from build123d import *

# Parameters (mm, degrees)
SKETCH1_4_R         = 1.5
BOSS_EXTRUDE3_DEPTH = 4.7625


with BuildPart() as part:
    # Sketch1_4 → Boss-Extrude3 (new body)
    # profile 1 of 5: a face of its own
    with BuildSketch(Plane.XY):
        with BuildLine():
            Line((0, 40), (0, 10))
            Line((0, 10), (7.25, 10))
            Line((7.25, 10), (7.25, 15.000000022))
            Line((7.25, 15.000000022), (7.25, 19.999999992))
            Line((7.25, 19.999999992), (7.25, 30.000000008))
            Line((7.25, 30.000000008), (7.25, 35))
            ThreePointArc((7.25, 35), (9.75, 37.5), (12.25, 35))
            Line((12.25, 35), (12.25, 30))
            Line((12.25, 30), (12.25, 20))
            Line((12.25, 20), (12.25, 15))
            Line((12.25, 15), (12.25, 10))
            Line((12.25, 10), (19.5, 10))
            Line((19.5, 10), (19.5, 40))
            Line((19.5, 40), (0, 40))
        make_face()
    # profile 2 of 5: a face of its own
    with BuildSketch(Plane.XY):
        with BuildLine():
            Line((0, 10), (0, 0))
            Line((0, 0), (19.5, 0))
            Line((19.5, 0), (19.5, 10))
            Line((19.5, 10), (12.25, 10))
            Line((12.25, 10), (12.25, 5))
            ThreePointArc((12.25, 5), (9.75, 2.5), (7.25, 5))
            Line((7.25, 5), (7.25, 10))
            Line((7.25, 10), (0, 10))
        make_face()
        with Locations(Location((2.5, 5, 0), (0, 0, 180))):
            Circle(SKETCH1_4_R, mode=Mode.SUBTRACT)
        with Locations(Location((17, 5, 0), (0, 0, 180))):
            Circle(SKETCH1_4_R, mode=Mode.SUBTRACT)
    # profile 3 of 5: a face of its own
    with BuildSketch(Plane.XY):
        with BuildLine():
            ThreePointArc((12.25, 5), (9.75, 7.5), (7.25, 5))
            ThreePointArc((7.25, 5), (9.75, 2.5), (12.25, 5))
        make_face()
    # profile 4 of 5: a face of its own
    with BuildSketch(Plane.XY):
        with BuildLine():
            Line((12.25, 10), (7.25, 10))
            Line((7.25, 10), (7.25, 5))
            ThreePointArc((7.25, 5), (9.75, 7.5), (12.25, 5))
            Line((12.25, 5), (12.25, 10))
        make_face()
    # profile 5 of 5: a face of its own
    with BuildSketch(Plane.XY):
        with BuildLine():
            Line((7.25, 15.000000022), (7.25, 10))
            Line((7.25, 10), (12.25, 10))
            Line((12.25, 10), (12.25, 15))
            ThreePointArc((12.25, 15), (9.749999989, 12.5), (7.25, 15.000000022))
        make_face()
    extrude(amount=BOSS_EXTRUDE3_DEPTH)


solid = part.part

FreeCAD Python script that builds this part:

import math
import FreeCAD as App
import Part
import Sketcher
from FreeCAD import Vector
Q = App.Units.Quantity

doc = App.newDocument("Part")
body = doc.addObject("PartDesign::Body", "Body")

sketch1 = body.newObject("Sketcher::SketchObject", "Sketch")
sketch1.AttachmentSupport = (doc.getObject("XY_Plane"), [""])
sketch1.MapMode = "FlatFace"
sketch1.addGeometry(Part.LineSegment(Vector(0, 40, 0), Vector(0, 0, 0)), False)
sketch1.addGeometry(Part.LineSegment(Vector(0, 0, 0), Vector(19.5, 0, 0)), False)
sketch1.addGeometry(Part.LineSegment(Vector(19.5, 0, 0), Vector(19.5, 40, 0)), False)
sketch1.addGeometry(Part.LineSegment(Vector(19.5, 40, 0), Vector(0, 40, 0)), False)
sketch1.addGeometry(Part.LineSegment(Vector(7.2, 15, 0), Vector(7.2, 35, 0)), False)
sketch1.addGeometry(Part.ArcOfCircle(Part.Circle(Vector(9.8, 35, 0), Vector(0, 0, 1), 2.5), math.radians(0), math.radians(180)), False)
sketch1.addGeometry(Part.LineSegment(Vector(12.2, 35, 0), Vector(12.2, 15, 0)), False)
sketch1.addGeometry(Part.ArcOfCircle(Part.Circle(Vector(9.8, 15, 0), Vector(0, 0, 1), 2.5), math.radians(180), math.radians(360)), False)
sketch1.addGeometry(Part.Circle(Vector(17, 5, 0), Vector(0, 0, 1), 1.5), False)
sketch1.addGeometry(Part.Circle(Vector(2.5, 5, 0), Vector(0, 0, 1), 1.5), False)
sketch1.addConstraint(Sketcher.Constraint("Coincident", 0, 2, 1, 1))
sketch1.addConstraint(Sketcher.Constraint("Coincident", 1, 2, 2, 1))
sketch1.addConstraint(Sketcher.Constraint("Coincident", 2, 2, 3, 1))
sketch1.addConstraint(Sketcher.Constraint("Coincident", 3, 2, 0, 1))
sketch1.addConstraint(Sketcher.Constraint("Tangent", 4, 2, 5, 2))
sketch1.addConstraint(Sketcher.Constraint("Tangent", 5, 1, 6, 1))
sketch1.addConstraint(Sketcher.Constraint("Tangent", 6, 2, 7, 2))
sketch1.addConstraint(Sketcher.Constraint("Tangent", 7, 1, 4, 1))
sketch1.addConstraint(Sketcher.Constraint("Vertical", 0))
sketch1.addConstraint(Sketcher.Constraint("Horizontal", 1))
sketch1.addConstraint(Sketcher.Constraint("Vertical", 2))
sketch1.addConstraint(Sketcher.Constraint("Horizontal", 3))
sketch1.addConstraint(Sketcher.Constraint("Vertical", 4))
sketch1.addConstraint(Sketcher.Constraint("Vertical", 6))
sketch1.addConstraint(Sketcher.Constraint("Coincident", 0, 2, -1, 1))
sketch1.addConstraint(Sketcher.Constraint("Equal", 8, 9))
sketch1.addConstraint(Sketcher.Constraint("Horizontal", 8, 3, 9, 3))
sketch1.addConstraint(Sketcher.Constraint("Diameter", 8, Q("3 mm")))
sketch1.addConstraint(Sketcher.Constraint("Radius", 5, Q("2.5 mm")))
sketch1.addConstraint(Sketcher.Constraint("DistanceY", 0, 2, 0, 1, Q("40 mm")))
sketch1.addConstraint(Sketcher.Constraint("DistanceY", 4, 1, 4, 2, Q("20 mm")))
sketch1.addConstraint(Sketcher.Constraint("DistanceX", 1, 1, 1, 2, Q("19.5 mm")))
sketch1.addConstraint(Sketcher.Constraint("DistanceY", -1, 1, 5, 3, Q("35 mm")))
sketch1.addConstraint(Sketcher.Constraint("DistanceX", -1, 1, 8, 3, Q("17 mm")))
sketch1.addConstraint(Sketcher.Constraint("DistanceY", -1, 1, 8, 3, Q("5 mm")))
sketch1.addConstraint(Sketcher.Constraint("DistanceX", 9, 3, 1, 2, Q("17 mm")))
sketch1.addConstraint(Sketcher.Constraint("DistanceX", -1, 1, 5, 3, Q("9.75 mm")))
pad1 = body.newObject("PartDesign::Pad", "Pad")
pad1.Profile = sketch1
pad1.Length = 4.7625

doc.recompute()
